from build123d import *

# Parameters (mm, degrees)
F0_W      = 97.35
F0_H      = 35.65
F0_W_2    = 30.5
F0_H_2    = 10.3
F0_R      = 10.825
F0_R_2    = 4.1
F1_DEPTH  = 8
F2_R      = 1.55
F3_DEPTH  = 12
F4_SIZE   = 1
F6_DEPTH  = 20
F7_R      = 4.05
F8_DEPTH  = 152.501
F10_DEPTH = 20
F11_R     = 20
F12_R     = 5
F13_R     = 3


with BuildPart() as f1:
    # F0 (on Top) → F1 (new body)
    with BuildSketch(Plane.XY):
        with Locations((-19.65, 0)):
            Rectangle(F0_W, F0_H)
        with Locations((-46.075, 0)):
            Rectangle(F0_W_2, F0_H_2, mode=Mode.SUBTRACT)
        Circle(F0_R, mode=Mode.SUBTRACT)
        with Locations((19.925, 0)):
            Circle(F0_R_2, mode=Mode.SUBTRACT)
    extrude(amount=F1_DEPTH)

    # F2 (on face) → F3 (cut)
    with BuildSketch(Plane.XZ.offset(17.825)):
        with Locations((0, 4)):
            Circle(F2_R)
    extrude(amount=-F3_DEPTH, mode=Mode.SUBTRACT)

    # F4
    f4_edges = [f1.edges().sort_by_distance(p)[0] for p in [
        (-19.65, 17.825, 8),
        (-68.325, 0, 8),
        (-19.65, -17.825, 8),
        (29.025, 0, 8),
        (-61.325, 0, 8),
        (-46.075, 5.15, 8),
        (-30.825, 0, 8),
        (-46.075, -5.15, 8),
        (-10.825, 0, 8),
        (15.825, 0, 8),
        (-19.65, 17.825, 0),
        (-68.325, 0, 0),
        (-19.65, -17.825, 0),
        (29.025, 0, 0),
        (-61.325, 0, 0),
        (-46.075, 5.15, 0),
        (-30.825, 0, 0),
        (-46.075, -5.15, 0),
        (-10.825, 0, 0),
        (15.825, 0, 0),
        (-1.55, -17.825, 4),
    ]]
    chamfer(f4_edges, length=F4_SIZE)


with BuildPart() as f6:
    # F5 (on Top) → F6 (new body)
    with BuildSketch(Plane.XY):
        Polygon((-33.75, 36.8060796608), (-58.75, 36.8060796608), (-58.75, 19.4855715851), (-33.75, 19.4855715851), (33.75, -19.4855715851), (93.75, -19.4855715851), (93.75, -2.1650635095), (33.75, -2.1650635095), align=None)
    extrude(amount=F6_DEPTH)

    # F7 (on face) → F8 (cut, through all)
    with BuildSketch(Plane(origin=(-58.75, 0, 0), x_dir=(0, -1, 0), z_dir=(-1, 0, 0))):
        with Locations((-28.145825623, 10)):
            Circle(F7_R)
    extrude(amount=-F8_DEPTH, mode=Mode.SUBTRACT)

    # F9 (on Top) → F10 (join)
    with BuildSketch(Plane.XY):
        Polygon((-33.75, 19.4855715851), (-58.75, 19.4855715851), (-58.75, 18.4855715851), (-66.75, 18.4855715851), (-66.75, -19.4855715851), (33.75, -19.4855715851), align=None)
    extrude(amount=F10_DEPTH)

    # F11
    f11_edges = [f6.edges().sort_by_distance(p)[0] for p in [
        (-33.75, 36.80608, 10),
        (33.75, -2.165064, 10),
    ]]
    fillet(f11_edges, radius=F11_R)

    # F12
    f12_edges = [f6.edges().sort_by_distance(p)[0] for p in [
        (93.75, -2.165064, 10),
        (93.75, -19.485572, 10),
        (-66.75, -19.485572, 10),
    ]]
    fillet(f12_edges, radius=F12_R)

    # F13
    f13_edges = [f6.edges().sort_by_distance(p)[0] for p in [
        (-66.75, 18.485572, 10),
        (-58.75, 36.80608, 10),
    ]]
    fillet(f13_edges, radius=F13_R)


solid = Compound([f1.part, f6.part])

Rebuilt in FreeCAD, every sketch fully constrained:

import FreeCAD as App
import Part
import Sketcher

V = App.Vector
Q = App.Units.Quantity


def edges_at(feature, points):
    """Names of the edges that pass closest to the given points."""
    edges = feature.Shape.Edges
    near = lambda p: min(range(len(edges)), key=lambda i: edges[i].distToShape(Part.Vertex(*p))[0])
    return sorted({f"Edge{near(p) + 1}" for p in points})

doc = App.newDocument("Part")
params = doc.addObject("Spreadsheet::Sheet", "Params")
for row, (alias, value) in enumerate([
    ("sketch1_diameter", "8.2 mm"),
    ("sketch1_diameter2", "21.65 mm"),
    ("sketch1_width", "30.5 mm"),
    ("sketch1_height", "10.3 mm"),
    ("sketch1_width2", "97.35 mm"),
    ("pad1_length", "8 mm"),
    ("sketch2_diameter", "3.1 mm"),
    ("pocket1_length", "12 mm"),
    ("chamfer_size", "1 mm"),
    ("sketch3_width", "25 mm"),
    ("sketch3_width2", "60 mm"),
    ("pad2_length", "20 mm"),
    ("sketch4_diameter", "8.1 mm"),
    ("sketch5_width", "25 mm"),
    ("sketch5_width2", "8 mm"),
    ("sketch5_height", "1 mm"),
    ("sketch5_width3", "100.5 mm"),
    ("pad3_length", "20 mm"),
    ("fillet_radius", "20 mm"),
    ("fillet2_radius", "5 mm"),
    ("fillet3_radius", "3 mm"),
], start=1):
    params.set(f"A{row}", alias)
    params.set(f"B{row}", "=" + value)
    params.setAlias(f"B{row}", alias)

body = doc.addObject("PartDesign::Body", "Body")

sketch1 = body.newObject("Sketcher::SketchObject", "Sketch")
sketch1.AttachmentSupport = (doc.getObject("XY_Plane"), [""])
sketch1.MapMode = "FlatFace"
sketch1.addGeometry([
    Part.LineSegment(V(-68.3, 17.8, 0), V(-68.3, -17.8, 0)),
    Part.LineSegment(V(-68.3, -17.8, 0), V(29, -17.8, 0)),
    Part.LineSegment(V(29, -17.8, 0), V(29, 17.8, 0)),
    Part.LineSegment(V(29, 17.8, 0), V(-68.3, 17.8, 0)),
    Part.LineSegment(V(-30.8, -5.2, 0), V(-61.3, -5.2, 0)),
    Part.LineSegment(V(-61.3, -5.2, 0), V(-61.3, 5.2, 0)),
    Part.LineSegment(V(-61.3, 5.2, 0), V(-30.8, 5.2, 0)),
    Part.LineSegment(V(-30.8, 5.2, 0), V(-30.8, -5.2, 0)),
    Part.Circle(V(0, 0, 0), V(0, 0, 1), 10.8),
    Part.Circle(V(19.9, 0, 0), V(0, 0, 1), 4.1),
], False)
sketch1.addConstraint([
    Sketcher.Constraint("Coincident", 0, 2, 1, 1),
    Sketcher.Constraint("Coincident", 1, 2, 2, 1),
    Sketcher.Constraint("Coincident", 2, 2, 3, 1),
    Sketcher.Constraint("Coincident", 3, 2, 0, 1),
    Sketcher.Constraint("Coincident", 4, 2, 5, 1),
    Sketcher.Constraint("Coincident", 5, 2, 6, 1),
    Sketcher.Constraint("Coincident", 6, 2, 7, 1),
    Sketcher.Constraint("Coincident", 7, 2, 4, 1),
    Sketcher.Constraint("Vertical", 0),
    Sketcher.Constraint("Horizontal", 1),
    Sketcher.Constraint("Vertical", 2),
    Sketcher.Constraint("Horizontal", 3),
    Sketcher.Constraint("Horizontal", 4),
    Sketcher.Constraint("Vertical", 5),
    Sketcher.Constraint("Horizontal", 6),
    Sketcher.Constraint("Vertical", 7),
    Sketcher.Constraint("Coincident", 8, 3, -1, 1),
    Sketcher.Constraint("PointOnObject", 9, 3, -1),
    Sketcher.Constraint("Diameter", 9, Q("8.2 mm")),
    Sketcher.Constraint("Diameter", 8, Q("21.65 mm")),
    Sketcher.Constraint("DistanceX", 4, 2, 4, 1, Q("30.5 mm")),
    Sketcher.Constraint("DistanceY", 5, 1, 5, 2, Q("10.3 mm")),
    Sketcher.Constraint("DistanceX", 0, 2, 4, 2, Q("7 mm")),
    Sketcher.Constraint("DistanceX", 1, 1, 1, 2, Q("97.35 mm")),
    Sketcher.Constraint("DistanceY", 0, 2, 0, 1, Q("35.65 mm")),
    Sketcher.Constraint("DistanceX", 9, 3, 1, 2, Q("9.1 mm")),
    Sketcher.Constraint("DistanceY", 4, 2, -1, 1, Q("5.15 mm")),
    Sketcher.Constraint("DistanceX", -1, 1, 9, 3, Q("19.925 mm")),
    Sketcher.Constraint("DistanceY", 0, 2, -1, 1, Q("17.825 mm")),
])
sketch1.setExpression("Constraints[18]", "Params.sketch1_diameter")
sketch1.setExpression("Constraints[19]", "Params.sketch1_diameter2")
sketch1.setExpression("Constraints[20]", "Params.sketch1_width")
sketch1.setExpression("Constraints[21]", "Params.sketch1_height")
sketch1.setExpression("Constraints[23]", "Params.sketch1_width2")
pad1 = body.newObject("PartDesign::Pad", "Pad")
pad1.Profile = sketch1
pad1.setExpression("Length", "Params.pad1_length")

sketch2 = body.newObject("Sketcher::SketchObject", "Sketch001")
sketch2.AttachmentSupport = (doc.getObject("XZ_Plane"), [""])
sketch2.MapMode = "FlatFace"
sketch2.AttachmentOffset = App.Placement(V(0, 0, 17.825), App.Rotation())
sketch2.addGeometry(Part.Circle(V(0, 4, 0), V(0, 0, 1), 1.6), False)
sketch2.addConstraint([
    Sketcher.Constraint("PointOnObject", 0, 3, -2),
    Sketcher.Constraint("Diameter", 0, Q("3.1 mm")),
    Sketcher.Constraint("DistanceY", -1, 1, 0, 3, Q("4 mm")),
])
sketch2.setExpression("Constraints[1]", "Params.sketch2_diameter")
pocket1 = body.newObject("PartDesign::Pocket", "Pocket")
pocket1.Profile = sketch2
pocket1.setExpression("Length", "Params.pocket1_length")
doc.recompute()

chamfer = body.newObject("PartDesign::Chamfer", "Chamfer")
chamfer.Base = (pocket1, edges_at(pocket1, [
    (-19.65, 17.825, 8),
    (-68.325, 0, 8),
    (-19.65, -17.825, 8),
    (29.025, 0, 8),
    (-61.325, 0, 8),
    (-46.075, 5.15, 8),
    (-30.825, 0, 8),
    (-46.075, -5.15, 8),
    (-10.825, 0, 8),
    (15.825, 0, 8),
    (-19.65, 17.825, 0),
    (-68.325, 0, 0),
    (-19.65, -17.825, 0),
    (29.025, 0, 0),
    (-61.325, 0, 0),
    (-46.075, 5.15, 0),
    (-30.825, 0, 0),
    (-46.075, -5.15, 0),
    (-10.825, 0, 0),
    (15.825, 0, 0),
    (-1.55, -17.825, 4),
]))
chamfer.setExpression("Size", "Params.chamfer_size")
body2 = doc.addObject("PartDesign::Body", "Body001")

sketch3 = body2.newObject("Sketcher::SketchObject", "Sketch002")
sketch3.AttachmentSupport = (doc.getObject("XY_Plane001"), [""])
sketch3.MapMode = "FlatFace"
sketch3.addGeometry([
    Part.LineSegment(V(-34, 37, 0), V(-59, 37, 0)),
    Part.LineSegment(V(-59, 37, 0), V(-59, 19, 0)),
    Part.LineSegment(V(-59, 19, 0), V(-34, 19, 0)),
    Part.LineSegment(V(-34, 19, 0), V(34, -19, 0)),
    Part.LineSegment(V(34, -19, 0), V(94, -19, 0)),
    Part.LineSegment(V(94, -19, 0), V(94, -2, 0)),
    Part.LineSegment(V(94, -2, 0), V(34, -2, 0)),
    Part.LineSegment(V(34, -2, 0), V(-34, 37, 0)),
], False)
sketch3.addConstraint([
    Sketcher.Constraint("Coincident", 0, 2, 1, 1),
    Sketcher.Constraint("Coincident", 1, 2, 2, 1),
    Sketcher.Constraint("Coincident", 2, 2, 3, 1),
    Sketcher.Constraint("Coincident", 3, 2, 4, 1),
    Sketcher.Constraint("Coincident", 4, 2, 5, 1),
    Sketcher.Constraint("Coincident", 5, 2, 6, 1),
    Sketcher.Constraint("Coincident", 6, 2, 7, 1),
    Sketcher.Constraint("Coincident", 7, 2, 0, 1),
    Sketcher.Constraint("Horizontal", 0),
    Sketcher.Constraint("Vertical", 1),
    Sketcher.Constraint("Horizontal", 2),
    Sketcher.Constraint("Horizontal", 4),
    Sketcher.Constraint("Vertical", 5),
    Sketcher.Constraint("Horizontal", 6),
    Sketcher.Constraint("Symmetric", 2, 2, 3, 2, -1, 1),
    Sketcher.Constraint("Parallel", 3, 7),
    Sketcher.Constraint("Vertical", 3, 2, 6, 2),
    Sketcher.Constraint("Vertical", 2, 2, 7, 2),
    Sketcher.Constraint("DistanceX", 0, 2, 0, 1, Q("25 mm")),
    Sketcher.Constraint("DistanceX", 4, 1, 4, 2, Q("60 mm")),
    Sketcher.Constraint("Angle", 3, Q("-30 deg")),
    Sketcher.Constraint("DistanceX", 2, 2, 3, 2, Q("67.5 mm")),
    Sketcher.Constraint("DistanceY", 1, 2, 1, 1, Q("17.320508 mm")),
])
sketch3.setExpression("Constraints[18]", "Params.sketch3_width")
sketch3.setExpression("Constraints[19]", "Params.sketch3_width2")
pad2 = body2.newObject("PartDesign::Pad", "Pad001")
pad2.Profile = sketch3
pad2.setExpression("Length", "Params.pad2_length")

sketch4 = body2.newObject("Sketcher::SketchObject", "Sketch003")
sketch4.AttachmentSupport = (doc.getObject("YZ_Plane001"), [""])
sketch4.MapMode = "FlatFace"
sketch4.AttachmentOffset = App.Placement(V(0, 0, -58.75), App.Rotation())
sketch4.addGeometry(Part.Circle(V(28.1, 10, 0), V(0, 0, 1), 4), False)
sketch4.addConstraint([
    Sketcher.Constraint("Diameter", 0, Q("8.1 mm")),
    Sketcher.Constraint("DistanceY", -1, 1, 0, 3, Q("10 mm")),
    Sketcher.Constraint("DistanceX", -1, 1, 0, 3, Q("28.145826 mm")),
])
sketch4.setExpression("Constraints[0]", "Params.sketch4_diameter")
pocket2 = body2.newObject("PartDesign::Pocket", "Pocket001")
pocket2.Profile = sketch4
pocket2.Type = "ThroughAll"
pocket2.Reversed = True

sketch5 = body2.newObject("Sketcher::SketchObject", "Sketch004")
sketch5.AttachmentSupport = (doc.getObject("XY_Plane001"), [""])
sketch5.MapMode = "FlatFace"
sketch5.addGeometry([
    Part.LineSegment(V(-33.8, 19.5, 0), V(-58.8, 19.5, 0)),
    Part.LineSegment(V(-58.8, 19.5, 0), V(-58.8, 18.5, 0)),
    Part.LineSegment(V(-58.8, 18.5, 0), V(-66.8, 18.5, 0)),
    Part.LineSegment(V(-66.8, 18.5, 0), V(-66.8, -19.5, 0)),
    Part.LineSegment(V(-66.8, -19.5, 0), V(33.8, -19.5, 0)),
    Part.LineSegment(V(33.8, -19.5, 0), V(-33.8, 19.5, 0)),
], False)
sketch5.addConstraint([
    Sketcher.Constraint("Coincident", 0, 2, 1, 1),
    Sketcher.Constraint("Coincident", 1, 2, 2, 1),
    Sketcher.Constraint("Coincident", 2, 2, 3, 1),
    Sketcher.Constraint("Coincident", 3, 2, 4, 1),
    Sketcher.Constraint("Coincident", 4, 2, 5, 1),
    Sketcher.Constraint("Coincident", 5, 2, 0, 1),
    Sketcher.Constraint("Horizontal", 0),
    Sketcher.Constraint("Vertical", 1),
    Sketcher.Constraint("Horizontal", 2),
    Sketcher.Constraint("Vertical", 3),
    Sketcher.Constraint("Horizontal", 4),
    Sketcher.Constraint("Symmetric", 4, 2, 5, 2, -1, 1),
    Sketcher.Constraint("DistanceX", 0, 2, 0, 1, Q("25 mm")),
    Sketcher.Constraint("DistanceX", 2, 2, 2, 1, Q("8 mm")),
    Sketcher.Constraint("DistanceY", 1, 2, 1, 1, Q("1 mm")),
    Sketcher.Constraint("Angle", 5, Q("150 deg")),
    Sketcher.Constraint("DistanceX", 4, 1, 4, 2, Q("100.5 mm")),
])
sketch5.setExpression("Constraints[12]", "Params.sketch5_width")
sketch5.setExpression("Constraints[13]", "Params.sketch5_width2")
sketch5.setExpression("Constraints[14]", "Params.sketch5_height")
sketch5.setExpression("Constraints[16]", "Params.sketch5_width3")
pad3 = body2.newObject("PartDesign::Pad", "Pad002")
pad3.Profile = sketch5
pad3.setExpression("Length", "Params.pad3_length")
doc.recompute()

fillet = body2.newObject("PartDesign::Fillet", "Fillet")
fillet.Base = (pad3, edges_at(pad3, [(-33.75, 36.806, 10), (33.75, -2.165, 10)]))
fillet.setExpression("Radius", "Params.fillet_radius")
doc.recompute()

fillet2 = body2.newObject("PartDesign::Fillet", "Fillet001")
fillet2.Base = (fillet, edges_at(fillet, [(93.75, -2.165, 10), (93.75, -19.486, 10), (-66.75, -19.486, 10)]))
fillet2.setExpression("Radius", "Params.fillet2_radius")
doc.recompute()

fillet3 = body2.newObject("PartDesign::Fillet", "Fillet002")
fillet3.Base = (fillet2, edges_at(fillet2, [(-66.75, 18.486, 10), (-58.75, 36.806, 10)]))
fillet3.setExpression("Radius", "Params.fillet3_radius")

doc.recompute()
